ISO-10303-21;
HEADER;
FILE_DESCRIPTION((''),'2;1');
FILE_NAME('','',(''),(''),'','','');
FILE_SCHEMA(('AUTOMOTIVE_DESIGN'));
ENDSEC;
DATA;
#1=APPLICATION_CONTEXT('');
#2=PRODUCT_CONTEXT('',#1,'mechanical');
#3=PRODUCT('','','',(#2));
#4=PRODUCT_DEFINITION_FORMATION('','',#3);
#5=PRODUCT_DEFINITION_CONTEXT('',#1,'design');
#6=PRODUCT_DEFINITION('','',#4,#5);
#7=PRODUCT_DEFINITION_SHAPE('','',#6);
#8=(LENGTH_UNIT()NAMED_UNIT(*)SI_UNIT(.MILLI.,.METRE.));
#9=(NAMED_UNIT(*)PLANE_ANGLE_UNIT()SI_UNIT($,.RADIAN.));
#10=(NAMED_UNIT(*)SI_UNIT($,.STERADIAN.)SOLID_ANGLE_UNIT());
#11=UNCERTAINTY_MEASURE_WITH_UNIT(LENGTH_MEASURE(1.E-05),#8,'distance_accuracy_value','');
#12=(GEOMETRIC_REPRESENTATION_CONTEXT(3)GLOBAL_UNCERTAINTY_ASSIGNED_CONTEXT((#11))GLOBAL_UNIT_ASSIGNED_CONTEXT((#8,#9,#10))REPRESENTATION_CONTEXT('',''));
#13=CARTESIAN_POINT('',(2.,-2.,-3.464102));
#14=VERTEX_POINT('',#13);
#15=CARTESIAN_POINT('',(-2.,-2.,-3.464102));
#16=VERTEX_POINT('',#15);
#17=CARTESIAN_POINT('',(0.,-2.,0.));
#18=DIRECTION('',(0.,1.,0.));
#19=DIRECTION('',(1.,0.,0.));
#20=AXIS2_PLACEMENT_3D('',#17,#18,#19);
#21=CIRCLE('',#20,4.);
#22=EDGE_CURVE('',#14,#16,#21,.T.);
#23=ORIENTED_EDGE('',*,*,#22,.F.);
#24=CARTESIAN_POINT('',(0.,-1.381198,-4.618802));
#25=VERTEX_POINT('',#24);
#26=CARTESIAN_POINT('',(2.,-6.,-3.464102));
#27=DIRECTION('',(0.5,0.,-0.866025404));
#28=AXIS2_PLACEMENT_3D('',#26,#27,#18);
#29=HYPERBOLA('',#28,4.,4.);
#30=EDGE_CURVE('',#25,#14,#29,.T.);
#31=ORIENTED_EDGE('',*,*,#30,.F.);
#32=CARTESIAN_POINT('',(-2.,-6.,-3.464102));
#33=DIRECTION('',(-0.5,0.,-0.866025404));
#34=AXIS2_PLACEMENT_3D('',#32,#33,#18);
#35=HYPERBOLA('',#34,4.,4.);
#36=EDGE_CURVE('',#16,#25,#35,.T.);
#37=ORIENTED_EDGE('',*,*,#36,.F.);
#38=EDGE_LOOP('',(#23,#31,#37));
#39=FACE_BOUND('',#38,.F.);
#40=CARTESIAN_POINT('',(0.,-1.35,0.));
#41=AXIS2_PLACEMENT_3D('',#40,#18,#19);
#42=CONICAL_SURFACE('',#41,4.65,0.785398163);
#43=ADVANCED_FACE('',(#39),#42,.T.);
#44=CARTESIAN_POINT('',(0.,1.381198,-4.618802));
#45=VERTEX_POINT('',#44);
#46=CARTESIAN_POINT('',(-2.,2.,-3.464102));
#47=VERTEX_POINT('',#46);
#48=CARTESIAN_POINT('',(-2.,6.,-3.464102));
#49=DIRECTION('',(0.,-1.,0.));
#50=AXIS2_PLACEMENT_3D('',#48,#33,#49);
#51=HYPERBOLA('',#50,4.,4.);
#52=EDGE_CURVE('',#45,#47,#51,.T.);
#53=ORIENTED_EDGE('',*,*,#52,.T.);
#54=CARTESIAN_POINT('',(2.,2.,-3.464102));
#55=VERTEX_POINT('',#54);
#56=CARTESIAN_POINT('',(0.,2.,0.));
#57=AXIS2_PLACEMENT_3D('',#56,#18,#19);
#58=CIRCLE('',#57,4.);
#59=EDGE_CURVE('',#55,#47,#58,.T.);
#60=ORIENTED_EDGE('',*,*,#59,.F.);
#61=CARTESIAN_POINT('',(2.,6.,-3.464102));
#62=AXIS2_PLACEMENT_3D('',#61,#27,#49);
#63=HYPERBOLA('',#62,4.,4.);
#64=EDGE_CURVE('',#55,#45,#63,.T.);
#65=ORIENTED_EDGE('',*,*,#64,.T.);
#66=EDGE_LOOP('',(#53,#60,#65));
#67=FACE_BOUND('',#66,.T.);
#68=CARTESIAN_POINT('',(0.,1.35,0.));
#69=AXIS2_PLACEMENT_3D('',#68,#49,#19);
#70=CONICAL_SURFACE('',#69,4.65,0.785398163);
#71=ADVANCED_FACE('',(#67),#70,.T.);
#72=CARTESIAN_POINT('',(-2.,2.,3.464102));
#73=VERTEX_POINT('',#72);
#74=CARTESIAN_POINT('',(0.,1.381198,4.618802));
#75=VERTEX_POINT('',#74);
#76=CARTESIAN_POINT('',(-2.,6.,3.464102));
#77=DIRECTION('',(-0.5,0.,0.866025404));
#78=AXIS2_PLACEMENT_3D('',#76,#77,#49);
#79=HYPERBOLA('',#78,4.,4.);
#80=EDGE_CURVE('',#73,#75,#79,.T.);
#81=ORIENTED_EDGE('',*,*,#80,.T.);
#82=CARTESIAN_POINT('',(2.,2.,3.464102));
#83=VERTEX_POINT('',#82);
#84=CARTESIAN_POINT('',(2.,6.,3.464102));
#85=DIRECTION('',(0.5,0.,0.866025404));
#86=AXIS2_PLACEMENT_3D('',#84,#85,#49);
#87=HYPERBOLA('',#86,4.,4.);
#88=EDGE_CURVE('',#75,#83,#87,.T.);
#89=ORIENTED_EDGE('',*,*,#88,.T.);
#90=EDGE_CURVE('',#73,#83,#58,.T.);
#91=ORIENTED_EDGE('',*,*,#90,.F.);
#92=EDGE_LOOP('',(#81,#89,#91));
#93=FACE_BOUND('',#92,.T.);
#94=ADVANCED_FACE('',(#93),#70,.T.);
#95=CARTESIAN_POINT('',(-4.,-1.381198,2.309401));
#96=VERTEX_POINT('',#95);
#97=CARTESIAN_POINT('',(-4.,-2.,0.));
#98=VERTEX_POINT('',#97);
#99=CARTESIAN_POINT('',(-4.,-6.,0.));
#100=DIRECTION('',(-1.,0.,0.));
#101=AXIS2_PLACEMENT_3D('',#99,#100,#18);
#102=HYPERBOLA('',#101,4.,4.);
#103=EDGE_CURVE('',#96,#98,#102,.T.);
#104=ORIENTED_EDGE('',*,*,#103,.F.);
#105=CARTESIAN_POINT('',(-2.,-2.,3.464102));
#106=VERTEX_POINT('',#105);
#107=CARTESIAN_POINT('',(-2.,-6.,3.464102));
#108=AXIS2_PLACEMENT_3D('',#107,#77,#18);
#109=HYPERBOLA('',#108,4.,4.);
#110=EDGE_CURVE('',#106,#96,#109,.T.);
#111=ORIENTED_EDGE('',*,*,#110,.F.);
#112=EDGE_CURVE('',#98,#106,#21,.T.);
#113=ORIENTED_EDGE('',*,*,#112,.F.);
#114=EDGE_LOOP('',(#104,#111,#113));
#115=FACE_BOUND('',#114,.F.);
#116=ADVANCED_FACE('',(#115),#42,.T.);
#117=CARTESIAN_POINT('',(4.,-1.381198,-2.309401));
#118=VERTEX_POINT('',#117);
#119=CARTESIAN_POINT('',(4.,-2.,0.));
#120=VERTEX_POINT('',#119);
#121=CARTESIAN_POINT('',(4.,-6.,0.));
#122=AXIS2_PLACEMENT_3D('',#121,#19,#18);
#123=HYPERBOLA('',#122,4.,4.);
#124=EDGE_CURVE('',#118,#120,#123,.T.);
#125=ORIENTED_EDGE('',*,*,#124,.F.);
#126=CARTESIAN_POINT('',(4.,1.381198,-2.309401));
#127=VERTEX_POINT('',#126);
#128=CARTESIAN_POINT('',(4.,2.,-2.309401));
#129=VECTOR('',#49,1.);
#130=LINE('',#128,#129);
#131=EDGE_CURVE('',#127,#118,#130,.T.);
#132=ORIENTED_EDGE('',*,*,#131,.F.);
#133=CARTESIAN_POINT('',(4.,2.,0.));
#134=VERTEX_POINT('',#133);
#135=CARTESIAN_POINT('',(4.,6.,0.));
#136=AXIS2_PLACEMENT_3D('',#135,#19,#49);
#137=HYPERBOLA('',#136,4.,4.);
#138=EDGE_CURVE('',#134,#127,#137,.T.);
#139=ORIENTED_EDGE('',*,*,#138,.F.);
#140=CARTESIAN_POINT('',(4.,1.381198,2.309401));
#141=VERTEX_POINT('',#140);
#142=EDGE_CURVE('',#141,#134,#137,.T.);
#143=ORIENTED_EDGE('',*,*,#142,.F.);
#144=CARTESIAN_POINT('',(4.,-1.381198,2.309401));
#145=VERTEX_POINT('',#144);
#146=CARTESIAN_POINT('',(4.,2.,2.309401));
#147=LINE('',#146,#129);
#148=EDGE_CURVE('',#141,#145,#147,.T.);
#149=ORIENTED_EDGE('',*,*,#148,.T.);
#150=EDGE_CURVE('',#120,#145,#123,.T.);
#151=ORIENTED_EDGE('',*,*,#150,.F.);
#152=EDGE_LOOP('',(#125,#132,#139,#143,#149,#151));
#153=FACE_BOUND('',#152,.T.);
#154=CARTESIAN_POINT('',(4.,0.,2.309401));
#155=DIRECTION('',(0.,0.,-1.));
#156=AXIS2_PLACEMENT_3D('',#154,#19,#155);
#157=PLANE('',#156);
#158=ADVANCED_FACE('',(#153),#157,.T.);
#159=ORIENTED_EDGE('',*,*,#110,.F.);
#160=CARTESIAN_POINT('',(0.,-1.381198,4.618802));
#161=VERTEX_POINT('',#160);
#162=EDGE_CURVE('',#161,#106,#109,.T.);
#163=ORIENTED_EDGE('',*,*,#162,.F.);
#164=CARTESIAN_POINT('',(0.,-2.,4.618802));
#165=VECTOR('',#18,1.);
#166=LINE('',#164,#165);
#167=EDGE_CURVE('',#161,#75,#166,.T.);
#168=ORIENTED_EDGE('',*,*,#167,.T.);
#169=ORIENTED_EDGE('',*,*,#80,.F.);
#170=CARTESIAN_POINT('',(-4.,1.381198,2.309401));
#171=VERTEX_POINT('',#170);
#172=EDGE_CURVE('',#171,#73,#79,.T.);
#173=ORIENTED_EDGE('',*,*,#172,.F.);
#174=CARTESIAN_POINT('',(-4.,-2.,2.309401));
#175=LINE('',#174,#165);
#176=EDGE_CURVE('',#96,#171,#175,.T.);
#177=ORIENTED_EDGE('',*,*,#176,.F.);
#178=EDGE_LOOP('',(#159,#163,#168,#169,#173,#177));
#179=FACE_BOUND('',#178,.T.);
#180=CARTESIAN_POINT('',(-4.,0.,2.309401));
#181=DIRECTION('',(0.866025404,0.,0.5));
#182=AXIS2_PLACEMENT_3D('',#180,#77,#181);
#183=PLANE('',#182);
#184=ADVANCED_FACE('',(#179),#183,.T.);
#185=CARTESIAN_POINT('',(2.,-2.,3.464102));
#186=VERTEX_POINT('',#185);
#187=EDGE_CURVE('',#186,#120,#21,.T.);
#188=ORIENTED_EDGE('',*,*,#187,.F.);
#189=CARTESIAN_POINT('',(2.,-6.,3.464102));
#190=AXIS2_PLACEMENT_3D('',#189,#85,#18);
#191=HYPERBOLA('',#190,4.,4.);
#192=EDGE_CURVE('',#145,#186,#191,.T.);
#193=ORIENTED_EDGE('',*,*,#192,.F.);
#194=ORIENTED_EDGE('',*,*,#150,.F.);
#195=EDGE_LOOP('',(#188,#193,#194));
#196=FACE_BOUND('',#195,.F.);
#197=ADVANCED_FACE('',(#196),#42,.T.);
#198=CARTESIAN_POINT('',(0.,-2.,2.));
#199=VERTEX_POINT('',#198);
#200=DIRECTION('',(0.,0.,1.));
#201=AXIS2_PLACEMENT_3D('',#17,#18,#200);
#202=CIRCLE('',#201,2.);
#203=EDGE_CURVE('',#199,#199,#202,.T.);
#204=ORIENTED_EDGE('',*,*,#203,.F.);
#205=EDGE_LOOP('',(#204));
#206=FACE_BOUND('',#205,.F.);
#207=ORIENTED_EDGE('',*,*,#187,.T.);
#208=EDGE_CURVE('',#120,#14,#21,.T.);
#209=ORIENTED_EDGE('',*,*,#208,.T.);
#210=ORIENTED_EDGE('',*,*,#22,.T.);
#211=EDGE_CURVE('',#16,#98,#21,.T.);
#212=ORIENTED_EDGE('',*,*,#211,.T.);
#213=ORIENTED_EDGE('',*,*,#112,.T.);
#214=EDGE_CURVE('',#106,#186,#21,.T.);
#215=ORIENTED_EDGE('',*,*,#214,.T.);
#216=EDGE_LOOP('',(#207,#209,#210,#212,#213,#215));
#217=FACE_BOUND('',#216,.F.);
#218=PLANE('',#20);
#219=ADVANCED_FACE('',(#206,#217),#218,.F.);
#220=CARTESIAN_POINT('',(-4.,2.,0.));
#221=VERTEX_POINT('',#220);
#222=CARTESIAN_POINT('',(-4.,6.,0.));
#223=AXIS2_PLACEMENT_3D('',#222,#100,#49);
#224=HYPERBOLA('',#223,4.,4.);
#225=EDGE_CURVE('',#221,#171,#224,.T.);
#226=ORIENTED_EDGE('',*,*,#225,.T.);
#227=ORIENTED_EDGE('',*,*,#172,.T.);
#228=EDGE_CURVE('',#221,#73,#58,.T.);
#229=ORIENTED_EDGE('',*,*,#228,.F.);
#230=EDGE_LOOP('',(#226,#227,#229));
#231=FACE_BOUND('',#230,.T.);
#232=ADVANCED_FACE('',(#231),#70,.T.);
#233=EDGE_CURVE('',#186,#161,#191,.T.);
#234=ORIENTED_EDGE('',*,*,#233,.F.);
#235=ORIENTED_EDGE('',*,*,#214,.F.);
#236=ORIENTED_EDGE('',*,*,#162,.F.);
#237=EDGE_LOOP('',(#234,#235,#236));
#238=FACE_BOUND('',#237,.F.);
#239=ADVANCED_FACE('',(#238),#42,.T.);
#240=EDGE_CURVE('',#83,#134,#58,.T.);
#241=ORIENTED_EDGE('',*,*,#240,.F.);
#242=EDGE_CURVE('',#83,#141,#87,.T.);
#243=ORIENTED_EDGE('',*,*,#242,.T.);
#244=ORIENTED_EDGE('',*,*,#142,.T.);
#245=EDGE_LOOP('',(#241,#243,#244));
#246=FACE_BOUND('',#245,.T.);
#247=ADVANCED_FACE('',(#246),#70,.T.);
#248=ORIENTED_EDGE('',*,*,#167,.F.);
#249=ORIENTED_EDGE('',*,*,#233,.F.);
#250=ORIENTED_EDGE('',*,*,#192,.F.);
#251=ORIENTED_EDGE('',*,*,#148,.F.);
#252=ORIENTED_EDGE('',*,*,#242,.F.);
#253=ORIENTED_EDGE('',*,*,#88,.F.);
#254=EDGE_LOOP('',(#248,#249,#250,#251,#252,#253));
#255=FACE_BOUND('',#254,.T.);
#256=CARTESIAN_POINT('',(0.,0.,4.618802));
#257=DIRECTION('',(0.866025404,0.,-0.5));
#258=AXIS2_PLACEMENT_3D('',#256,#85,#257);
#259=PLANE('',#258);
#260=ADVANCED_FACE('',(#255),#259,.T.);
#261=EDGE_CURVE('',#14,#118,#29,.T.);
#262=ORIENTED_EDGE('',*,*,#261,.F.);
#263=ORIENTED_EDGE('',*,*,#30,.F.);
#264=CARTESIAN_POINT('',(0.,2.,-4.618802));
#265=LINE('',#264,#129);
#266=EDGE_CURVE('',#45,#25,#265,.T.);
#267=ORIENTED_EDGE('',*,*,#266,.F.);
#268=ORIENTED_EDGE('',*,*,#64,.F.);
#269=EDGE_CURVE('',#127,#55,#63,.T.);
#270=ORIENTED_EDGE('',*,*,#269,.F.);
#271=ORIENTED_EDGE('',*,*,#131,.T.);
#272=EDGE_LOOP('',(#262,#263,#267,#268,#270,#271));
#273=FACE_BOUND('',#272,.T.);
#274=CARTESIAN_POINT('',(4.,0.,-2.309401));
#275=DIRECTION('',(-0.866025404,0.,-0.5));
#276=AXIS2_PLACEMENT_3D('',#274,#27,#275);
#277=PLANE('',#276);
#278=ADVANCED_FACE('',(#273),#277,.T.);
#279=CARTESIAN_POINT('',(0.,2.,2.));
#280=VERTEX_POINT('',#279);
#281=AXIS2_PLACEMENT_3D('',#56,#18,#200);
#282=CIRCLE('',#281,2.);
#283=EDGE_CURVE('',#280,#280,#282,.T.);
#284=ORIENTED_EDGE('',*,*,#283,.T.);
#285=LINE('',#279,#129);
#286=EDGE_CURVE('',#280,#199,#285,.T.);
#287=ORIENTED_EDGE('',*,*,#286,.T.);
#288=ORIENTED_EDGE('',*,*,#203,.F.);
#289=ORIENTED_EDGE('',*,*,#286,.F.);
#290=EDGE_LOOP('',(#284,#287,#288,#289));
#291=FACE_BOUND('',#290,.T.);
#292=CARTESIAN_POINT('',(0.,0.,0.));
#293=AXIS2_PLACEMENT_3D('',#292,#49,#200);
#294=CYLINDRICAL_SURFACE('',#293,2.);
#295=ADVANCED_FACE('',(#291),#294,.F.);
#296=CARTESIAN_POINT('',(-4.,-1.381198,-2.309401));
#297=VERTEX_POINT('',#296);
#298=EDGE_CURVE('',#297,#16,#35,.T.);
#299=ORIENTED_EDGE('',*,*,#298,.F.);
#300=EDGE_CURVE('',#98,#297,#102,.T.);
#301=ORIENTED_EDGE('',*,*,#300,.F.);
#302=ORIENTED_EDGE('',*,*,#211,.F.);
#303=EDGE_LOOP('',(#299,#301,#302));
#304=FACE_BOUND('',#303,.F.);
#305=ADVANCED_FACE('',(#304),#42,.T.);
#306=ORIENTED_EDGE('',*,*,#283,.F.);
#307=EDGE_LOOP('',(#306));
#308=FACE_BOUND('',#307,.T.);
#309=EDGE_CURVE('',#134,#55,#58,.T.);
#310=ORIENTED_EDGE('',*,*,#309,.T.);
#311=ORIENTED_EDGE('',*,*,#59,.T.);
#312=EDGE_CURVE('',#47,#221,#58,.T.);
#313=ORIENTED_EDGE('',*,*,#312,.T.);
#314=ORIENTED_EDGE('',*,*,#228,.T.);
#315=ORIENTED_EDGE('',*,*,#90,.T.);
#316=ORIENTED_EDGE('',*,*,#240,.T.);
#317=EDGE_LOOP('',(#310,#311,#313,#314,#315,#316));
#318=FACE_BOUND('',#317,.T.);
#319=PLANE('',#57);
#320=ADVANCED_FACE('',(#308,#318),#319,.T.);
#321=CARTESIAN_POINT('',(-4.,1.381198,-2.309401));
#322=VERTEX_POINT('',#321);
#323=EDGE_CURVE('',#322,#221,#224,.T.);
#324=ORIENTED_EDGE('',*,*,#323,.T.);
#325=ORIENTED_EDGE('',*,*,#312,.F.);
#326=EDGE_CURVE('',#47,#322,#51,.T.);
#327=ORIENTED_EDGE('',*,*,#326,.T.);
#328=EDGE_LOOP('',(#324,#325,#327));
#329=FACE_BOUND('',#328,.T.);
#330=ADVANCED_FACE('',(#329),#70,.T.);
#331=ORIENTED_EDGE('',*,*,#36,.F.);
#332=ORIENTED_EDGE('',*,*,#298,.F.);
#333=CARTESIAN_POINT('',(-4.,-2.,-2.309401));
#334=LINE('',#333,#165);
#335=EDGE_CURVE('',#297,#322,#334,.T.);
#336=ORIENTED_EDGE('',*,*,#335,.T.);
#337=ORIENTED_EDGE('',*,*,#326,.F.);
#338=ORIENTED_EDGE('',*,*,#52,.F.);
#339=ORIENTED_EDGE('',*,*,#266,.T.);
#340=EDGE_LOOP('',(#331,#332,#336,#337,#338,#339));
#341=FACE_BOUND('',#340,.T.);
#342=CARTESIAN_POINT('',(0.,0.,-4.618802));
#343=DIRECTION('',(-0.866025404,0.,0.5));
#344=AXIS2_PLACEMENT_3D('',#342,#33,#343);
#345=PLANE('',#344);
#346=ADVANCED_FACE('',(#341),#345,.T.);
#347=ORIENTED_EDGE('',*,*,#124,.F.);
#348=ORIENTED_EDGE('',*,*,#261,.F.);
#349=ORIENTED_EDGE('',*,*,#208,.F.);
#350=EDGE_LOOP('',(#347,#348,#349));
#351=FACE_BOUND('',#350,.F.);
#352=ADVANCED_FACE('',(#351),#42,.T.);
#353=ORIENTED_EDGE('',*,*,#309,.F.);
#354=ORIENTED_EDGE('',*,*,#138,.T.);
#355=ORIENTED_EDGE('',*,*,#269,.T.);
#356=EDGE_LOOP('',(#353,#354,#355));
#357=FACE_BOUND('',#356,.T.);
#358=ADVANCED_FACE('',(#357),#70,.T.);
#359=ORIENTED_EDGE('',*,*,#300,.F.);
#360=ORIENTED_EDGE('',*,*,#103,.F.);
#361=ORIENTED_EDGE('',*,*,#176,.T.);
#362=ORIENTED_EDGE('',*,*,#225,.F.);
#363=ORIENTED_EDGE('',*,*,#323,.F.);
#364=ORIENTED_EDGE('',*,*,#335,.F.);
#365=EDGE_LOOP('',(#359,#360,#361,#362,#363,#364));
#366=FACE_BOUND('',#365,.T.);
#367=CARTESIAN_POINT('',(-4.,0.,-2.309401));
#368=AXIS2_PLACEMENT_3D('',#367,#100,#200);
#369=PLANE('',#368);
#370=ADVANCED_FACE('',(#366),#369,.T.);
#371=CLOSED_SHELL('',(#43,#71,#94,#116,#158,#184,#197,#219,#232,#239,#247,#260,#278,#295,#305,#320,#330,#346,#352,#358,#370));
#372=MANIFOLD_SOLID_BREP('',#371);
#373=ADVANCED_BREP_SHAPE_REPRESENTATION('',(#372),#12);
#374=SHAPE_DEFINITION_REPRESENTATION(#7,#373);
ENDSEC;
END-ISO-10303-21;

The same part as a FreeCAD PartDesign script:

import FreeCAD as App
import Part
import Sketcher
Q = App.Units.Quantity


def add_polygon(sketch, points):
    """Adds a closed chain of lines whose ends are joined by coincident constraints."""
    first, n = sketch.GeometryCount, len(points)
    for a, b in zip(points, points[1:] + points[:1]):
        sketch.addGeometry(Part.LineSegment(App.Vector(*a, 0), App.Vector(*b, 0)), False)
    for i in range(n):
        sketch.addConstraint(Sketcher.Constraint("Coincident", first + i, 2, first + (i + 1) % n, 1))

doc = App.newDocument("Part")
params = doc.addObject("Spreadsheet::Sheet", "Params")
for row, (alias, value) in enumerate([
    ("sketch1_diameter", "4 mm"),
    ("pad1_length", "4 mm"),
    ("sketch2_width", "0.65 mm"),
    ("sketch3_diameter", "8 mm"),
], start=1):
    params.set(f"A{row}", alias)
    params.set(f"B{row}", "=" + value)
    params.setAlias(f"B{row}", alias)

body = doc.addObject("PartDesign::Body", "Body")

# Sketch on XZ plane
sketch1 = body.newObject("Sketcher::SketchObject", "Sketch")
sketch1.AttachmentSupport = (doc.getObject("XZ_Plane"), [""])
sketch1.MapMode = "FlatFace"
add_polygon(sketch1, [(0, -4.6), (-4, -2.3), (-4, 2.3), (0, 4.6), (4, 2.3), (4, -2.3)])  # lines 0-5
sketch1.addGeometry(Part.Circle(App.Vector(0, 0, 0), App.Vector(0, 0, 1), 2), False)  # 6
sketch1.addConstraint([
    Sketcher.Constraint("Vertical", 1),
    Sketcher.Constraint("Vertical", 4),
    Sketcher.Constraint("Coincident", 6, 3, -1, 1),
    Sketcher.Constraint("Symmetric", 0, 2, 3, 2, -1, 1),
    Sketcher.Constraint("Symmetric", 2, 2, 5, 2, -1, 1),
    Sketcher.Constraint("PointOnObject", 2, 2, -2),
    Sketcher.Constraint("Parallel", 2, 5),
    Sketcher.Constraint("Horizontal", 1, 2, 3, 2),
    Sketcher.Constraint("Diameter", 6, Q("4 mm")),
    Sketcher.Constraint("Angle", 0, Q("150 deg")),
    Sketcher.Constraint("DistanceX", 0, 2, -1, 1, Q("4 mm")),
    Sketcher.Constraint("DistanceY", 0, 2, -1, 1, Q("2.309401 mm")),
])
sketch1.setExpression("Constraints[14]", "Params.sketch1_diameter")
pad1 = body.newObject("PartDesign::Pad", "Pad")
pad1.Profile = sketch1
pad1.setExpression("Length", "Params.pad1_length")
pad1.Midplane = True

# Sketch on XY plane
sketch2 = body.newObject("Sketcher::SketchObject", "Sketch001")
sketch2.AttachmentSupport = (doc.getObject("XY_Plane"), [""])
sketch2.MapMode = "FlatFace"
add_polygon(sketch2, [(-4.7, 1.4), (-4, 2), (-4.7, 2)])  # lines 0-2
sketch2.addConstraint([
    Sketcher.Constraint("Horizontal", 1),
    Sketcher.Constraint("Vertical", 2),
    Sketcher.Constraint("Equal", 1, 2),
    Sketcher.Constraint("DistanceX", 0, 2, -1, 1, Q("4 mm")),
    Sketcher.Constraint("DistanceY", -1, 1, 0, 2, Q("2 mm")),
    Sketcher.Constraint("DistanceX", 1, 2, 1, 1, Q("0.65 mm")),
])
sketch2.setExpression("Constraints[8]", "Params.sketch2_width")

# Sketch on XZ plane
sketch3 = body.newObject("Sketcher::SketchObject", "Sketch002")
sketch3.AttachmentSupport = (doc.getObject("XZ_Plane"), [""])
sketch3.MapMode = "FlatFace"
sketch3.AttachmentOffset = App.Placement(App.Vector(0, 0, -2), App.Rotation())
sketch3.addGeometry(Part.Circle(App.Vector(0, 0, 0), App.Vector(0, 0, 1), 4), False)
sketch3.addConstraint([
    Sketcher.Constraint("Coincident", 0, 3, -1, 1),
    Sketcher.Constraint("Diameter", 0, Q("8 mm")),
])
sketch3.setExpression("Constraints[1]", "Params.sketch3_diameter")
doc.recompute()

subtractivepipe = body.newObject("PartDesign::SubtractivePipe", "SubtractivePipe")
subtractivepipe.Profile = sketch2
subtractivepipe.Spine = (sketch3, ["Edge1"])
doc.recompute()

mirrored = body.newObject("PartDesign::Mirrored", "Mirrored")
mirrored.Originals = [subtractivepipe]
mirrored.MirrorPlane = (doc.getObject("XZ_Plane"), [""])
body.Tip = mirrored

doc.recompute()
